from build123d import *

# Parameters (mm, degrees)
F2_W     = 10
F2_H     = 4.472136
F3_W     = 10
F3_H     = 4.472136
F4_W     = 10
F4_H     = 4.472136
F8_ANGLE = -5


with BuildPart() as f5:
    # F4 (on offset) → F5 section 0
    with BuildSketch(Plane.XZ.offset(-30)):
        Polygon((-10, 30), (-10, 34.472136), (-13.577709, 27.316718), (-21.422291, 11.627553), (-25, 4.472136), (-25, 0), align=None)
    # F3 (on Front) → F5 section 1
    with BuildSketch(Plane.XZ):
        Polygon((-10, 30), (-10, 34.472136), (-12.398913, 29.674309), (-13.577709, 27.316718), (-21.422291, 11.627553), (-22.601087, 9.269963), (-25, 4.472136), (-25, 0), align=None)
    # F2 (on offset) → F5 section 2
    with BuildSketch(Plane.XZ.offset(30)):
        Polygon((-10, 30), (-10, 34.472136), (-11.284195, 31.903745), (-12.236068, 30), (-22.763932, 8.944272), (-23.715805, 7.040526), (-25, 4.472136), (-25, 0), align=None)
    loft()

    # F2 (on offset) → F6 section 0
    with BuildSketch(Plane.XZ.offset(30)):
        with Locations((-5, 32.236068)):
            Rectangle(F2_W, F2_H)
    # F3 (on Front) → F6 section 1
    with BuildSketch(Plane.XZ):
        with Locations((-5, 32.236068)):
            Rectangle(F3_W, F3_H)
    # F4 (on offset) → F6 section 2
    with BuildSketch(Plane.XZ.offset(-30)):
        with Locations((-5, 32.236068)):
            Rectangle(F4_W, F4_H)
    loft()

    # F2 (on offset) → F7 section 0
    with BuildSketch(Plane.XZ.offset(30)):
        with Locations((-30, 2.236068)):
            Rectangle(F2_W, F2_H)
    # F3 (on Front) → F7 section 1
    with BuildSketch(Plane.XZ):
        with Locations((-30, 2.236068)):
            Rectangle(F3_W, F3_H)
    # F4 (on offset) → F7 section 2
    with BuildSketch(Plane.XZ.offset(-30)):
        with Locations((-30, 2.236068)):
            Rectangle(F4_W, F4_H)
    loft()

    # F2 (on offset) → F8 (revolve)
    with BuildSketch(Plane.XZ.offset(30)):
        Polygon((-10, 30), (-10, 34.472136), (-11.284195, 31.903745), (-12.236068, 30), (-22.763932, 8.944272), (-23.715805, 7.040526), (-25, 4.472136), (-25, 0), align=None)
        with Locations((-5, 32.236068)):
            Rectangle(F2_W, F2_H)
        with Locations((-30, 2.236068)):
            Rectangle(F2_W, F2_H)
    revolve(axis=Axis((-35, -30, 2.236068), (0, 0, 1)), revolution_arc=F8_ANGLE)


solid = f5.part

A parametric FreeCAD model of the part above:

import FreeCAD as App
import Part
import Sketcher

doc = App.newDocument("Part")
params = doc.addObject("Spreadsheet::Sheet", "Params")
for row, (alias, value) in enumerate([
    ("sketch1_length", "8.000001 mm"),
    ("sketch4_width", "10 mm"),
    ("sketch5_width", "10 mm"),
    ("sketch6_width", "10 mm"),
    ("sketch7_width", "10 mm"),
    ("sketch8_width", "10 mm"),
    ("sketch9_width", "10 mm"),
    ("sketch10_width", "10 mm"),
    ("revolution_angle", "5 deg"),
], start=1):
    params.set(f"A{row}", alias)
    params.set(f"B{row}", "=" + value)
    params.setAlias(f"B{row}", alias)

body = doc.addObject("PartDesign::Body", "Body")

# Sketch on XZ plane
sketch1 = doc.addObject("Sketcher::SketchObject", "Sketch")
body.addObject(sketch1)
sketch1.AttachmentSupport = (doc.XZ_Plane, [""])
sketch1.MapMode = "FlatFace"
sketch1.AttachmentOffset = App.Placement(App.Vector(0, 0, -30), App.Rotation())
sketch1.addGeometry([
    Part.LineSegment(App.Vector(-10, 30, 0), App.Vector(-10, 34.5, 0)),  # 0
    Part.LineSegment(App.Vector(-10, 34.5, 0), App.Vector(-13.6, 27.3, 0)),  # 1
    Part.LineSegment(App.Vector(-13.6, 27.3, 0), App.Vector(-21.4, 11.6, 0)),  # 2
    Part.LineSegment(App.Vector(-21.4, 11.6, 0), App.Vector(-25, 4.5, 0)),  # 3
    Part.LineSegment(App.Vector(-25, 4.5, 0), App.Vector(-25, 0, 0)),  # 4
    Part.LineSegment(App.Vector(-25, 0, 0), App.Vector(-10, 30, 0)),  # 5
], False)
sketch1.addConstraint([
    Sketcher.Constraint("Coincident", 0, 2, 1, 1),
    Sketcher.Constraint("Coincident", 1, 2, 2, 1),
    Sketcher.Constraint("Coincident", 2, 2, 3, 1),
    Sketcher.Constraint("Coincident", 3, 2, 4, 1),
    Sketcher.Constraint("Coincident", 4, 2, 5, 1),
    Sketcher.Constraint("Coincident", 5, 2, 0, 1),
    Sketcher.Constraint("Vertical", 0),
    Sketcher.Constraint("Vertical", 4),
    Sketcher.Constraint("PointOnObject", 4, 2, -1),
    Sketcher.Constraint("Parallel", 1, 2),
    Sketcher.Constraint("Parallel", 2, 3),
    Sketcher.Constraint("Parallel", 3, 5),
    Sketcher.Constraint("Equal", 1, 3),
    Sketcher.Constraint("Distance", 1, 8.000001),
    Sketcher.Constraint("DistanceX", 0, 2, -1, 1, 10.0),
    Sketcher.Constraint("DistanceX", 3, 2, -1, 1, 25.0),
    Sketcher.Constraint("DistanceY", -1, 1, 5, 2, 30.0),
    Sketcher.Constraint("DistanceY", 0, 1, 0, 2, 4.472136),
])
sketch1.setExpression("Constraints[13]", "Params.sketch1_length")

# Sketch on XZ plane
sketch2 = doc.addObject("Sketcher::SketchObject", "Sketch001")
body.addObject(sketch2)
sketch2.AttachmentSupport = (doc.XZ_Plane, [""])
sketch2.MapMode = "FlatFace"
sketch2.addGeometry([
    Part.LineSegment(App.Vector(-10, 30, 0), App.Vector(-10, 34.5, 0)),  # 0
    Part.LineSegment(App.Vector(-10, 34.5, 0), App.Vector(-12.4, 29.7, 0)),  # 1
    Part.LineSegment(App.Vector(-12.4, 29.7, 0), App.Vector(-13.6, 27.3, 0)),  # 2
    Part.LineSegment(App.Vector(-13.6, 27.3, 0), App.Vector(-21.4, 11.6, 0)),  # 3
    Part.LineSegment(App.Vector(-21.4, 11.6, 0), App.Vector(-22.6, 9.3, 0)),  # 4
    Part.LineSegment(App.Vector(-22.6, 9.3, 0), App.Vector(-25, 4.5, 0)),  # 5
    Part.LineSegment(App.Vector(-25, 4.5, 0), App.Vector(-25, 0, 0)),  # 6
    Part.LineSegment(App.Vector(-25, 0, 0), App.Vector(-10, 30, 0)),  # 7
], False)
sketch2.addConstraint([
    Sketcher.Constraint("Coincident", 0, 2, 1, 1),
    Sketcher.Constraint("Coincident", 1, 2, 2, 1),
    Sketcher.Constraint("Coincident", 2, 2, 3, 1),
    Sketcher.Constraint("Coincident", 3, 2, 4, 1),
    Sketcher.Constraint("Coincident", 4, 2, 5, 1),
    Sketcher.Constraint("Coincident", 5, 2, 6, 1),
    Sketcher.Constraint("Coincident", 6, 2, 7, 1),
    Sketcher.Constraint("Coincident", 7, 2, 0, 1),
    Sketcher.Constraint("Vertical", 0),
    Sketcher.Constraint("Vertical", 6),
    Sketcher.Constraint("PointOnObject", 6, 2, -1),
    Sketcher.Constraint("Parallel", 1, 2),
    Sketcher.Constraint("Parallel", 2, 3),
    Sketcher.Constraint("Parallel", 3, 4),
    Sketcher.Constraint("Parallel", 4, 5),
    Sketcher.Constraint("Parallel", 5, 7),
    Sketcher.Constraint("Equal", 2, 4),
    Sketcher.Constraint("Equal", 1, 5),
    Sketcher.Constraint("DistanceX", 0, 2, -1, 1, 10.0),
    Sketcher.Constraint("DistanceX", 5, 2, -1, 1, 25.0),
    Sketcher.Constraint("DistanceY", -1, 1, 7, 2, 30.0),
    Sketcher.Constraint("Distance", 3, 17.54102),
    Sketcher.Constraint("DistanceY", 0, 1, 0, 2, 4.472136),
    Sketcher.Constraint("DistanceY", -1, 1, 1, 2, 29.674309),
])

# Sketch on XZ plane
sketch3 = doc.addObject("Sketcher::SketchObject", "Sketch002")
body.addObject(sketch3)
sketch3.AttachmentSupport = (doc.XZ_Plane, [""])
sketch3.MapMode = "FlatFace"
sketch3.AttachmentOffset = App.Placement(App.Vector(0, 0, 30), App.Rotation())
sketch3.addGeometry([
    Part.LineSegment(App.Vector(-10, 30, 0), App.Vector(-10, 34.5, 0)),  # 0
    Part.LineSegment(App.Vector(-10, 34.5, 0), App.Vector(-11.3, 31.9, 0)),  # 1
    Part.LineSegment(App.Vector(-11.3, 31.9, 0), App.Vector(-12.2, 30, 0)),  # 2
    Part.LineSegment(App.Vector(-12.2, 30, 0), App.Vector(-25, 4.5, 0)),  # 3
    Part.LineSegment(App.Vector(-25, 4.5, 0), App.Vector(-25, 0, 0)),  # 4
    Part.LineSegment(App.Vector(-25, 0, 0), App.Vector(-10, 30, 0)),  # 5
], False)
sketch3.addConstraint([
    Sketcher.Constraint("Coincident", 0, 2, 1, 1),
    Sketcher.Constraint("Coincident", 1, 2, 2, 1),
    Sketcher.Constraint("Coincident", 2, 2, 3, 1),
    Sketcher.Constraint("Coincident", 3, 2, 4, 1),
    Sketcher.Constraint("Coincident", 4, 2, 5, 1),
    Sketcher.Constraint("Coincident", 5, 2, 0, 1),
    Sketcher.Constraint("Vertical", 0),
    Sketcher.Constraint("Vertical", 4),
    Sketcher.Constraint("PointOnObject", 4, 2, -1),
    Sketcher.Constraint("Parallel", 1, 2),
    Sketcher.Constraint("Parallel", 2, 3),
    Sketcher.Constraint("Parallel", 3, 5),
    Sketcher.Constraint("Horizontal", 2, 2, 5, 2),
    Sketcher.Constraint("DistanceX", 0, 2, -1, 1, 10.0),
    Sketcher.Constraint("DistanceY", -1, 1, 2, 2, 30.0),
    Sketcher.Constraint("DistanceX", 3, 2, -1, 1, 25.0),
    Sketcher.Constraint("Distance", 1, 2.871548),
    Sketcher.Constraint("Distance", 2, 2.128452),
])

additiveloft = doc.addObject("PartDesign::AdditiveLoft", "AdditiveLoft")
body.addObject(additiveloft)
additiveloft.Profile = sketch1
additiveloft.Sections = [sketch2, sketch3]

# Sketch on XZ plane
sketch4 = doc.addObject("Sketcher::SketchObject", "Sketch003")
body.addObject(sketch4)
sketch4.AttachmentSupport = (doc.XZ_Plane, [""])
sketch4.MapMode = "FlatFace"
sketch4.AttachmentOffset = App.Placement(App.Vector(0, 0, 30), App.Rotation())
sketch4.addGeometry([
    Part.LineSegment(App.Vector(-10, 34.5, 0), App.Vector(-10, 30, 0)),
    Part.LineSegment(App.Vector(-10, 30, 0), App.Vector(0, 30, 0)),
    Part.LineSegment(App.Vector(0, 30, 0), App.Vector(0, 34.5, 0)),
    Part.LineSegment(App.Vector(0, 34.5, 0), App.Vector(-10, 34.5, 0)),
], False)
sketch4.addConstraint([
    Sketcher.Constraint("Coincident", 0, 2, 1, 1),
    Sketcher.Constraint("Coincident", 1, 2, 2, 1),
    Sketcher.Constraint("Coincident", 2, 2, 3, 1),
    Sketcher.Constraint("Coincident", 3, 2, 0, 1),
    Sketcher.Constraint("Vertical", 0),
    Sketcher.Constraint("Horizontal", 1),
    Sketcher.Constraint("Vertical", 2),
    Sketcher.Constraint("Horizontal", 3),
    Sketcher.Constraint("PointOnObject", 1, 2, -2),
    Sketcher.Constraint("DistanceX", 1, 1, 1, 2, 10.0),
    Sketcher.Constraint("DistanceY", -1, 1, 0, 2, 30.0),
    Sketcher.Constraint("DistanceY", 0, 2, 0, 1, 4.472136),
])
sketch4.setExpression("Constraints[9]", "Params.sketch4_width")

# Sketch on XZ plane
sketch5 = doc.addObject("Sketcher::SketchObject", "Sketch004")
body.addObject(sketch5)
sketch5.AttachmentSupport = (doc.XZ_Plane, [""])
sketch5.MapMode = "FlatFace"
sketch5.addGeometry([
    Part.LineSegment(App.Vector(-10, 34.5, 0), App.Vector(-10, 30, 0)),
    Part.LineSegment(App.Vector(-10, 30, 0), App.Vector(0, 30, 0)),
    Part.LineSegment(App.Vector(0, 30, 0), App.Vector(0, 34.5, 0)),
    Part.LineSegment(App.Vector(0, 34.5, 0), App.Vector(-10, 34.5, 0)),
], False)
sketch5.addConstraint([
    Sketcher.Constraint("Coincident", 0, 2, 1, 1),
    Sketcher.Constraint("Coincident", 1, 2, 2, 1),
    Sketcher.Constraint("Coincident", 2, 2, 3, 1),
    Sketcher.Constraint("Coincident", 3, 2, 0, 1),
    Sketcher.Constraint("Vertical", 0),
    Sketcher.Constraint("Horizontal", 1),
    Sketcher.Constraint("Vertical", 2),
    Sketcher.Constraint("Horizontal", 3),
    Sketcher.Constraint("PointOnObject", 1, 2, -2),
    Sketcher.Constraint("DistanceX", 1, 1, 1, 2, 10.0),
    Sketcher.Constraint("DistanceY", -1, 1, 0, 2, 30.0),
    Sketcher.Constraint("DistanceY", 0, 2, 0, 1, 4.472136),
])
sketch5.setExpression("Constraints[9]", "Params.sketch5_width")

# Sketch on XZ plane
sketch6 = doc.addObject("Sketcher::SketchObject", "Sketch005")
body.addObject(sketch6)
sketch6.AttachmentSupport = (doc.XZ_Plane, [""])
sketch6.MapMode = "FlatFace"
sketch6.AttachmentOffset = App.Placement(App.Vector(0, 0, -30), App.Rotation())
sketch6.addGeometry([
    Part.LineSegment(App.Vector(-10, 34.5, 0), App.Vector(-10, 30, 0)),
    Part.LineSegment(App.Vector(-10, 30, 0), App.Vector(0, 30, 0)),
    Part.LineSegment(App.Vector(0, 30, 0), App.Vector(0, 34.5, 0)),
    Part.LineSegment(App.Vector(0, 34.5, 0), App.Vector(-10, 34.5, 0)),
], False)
sketch6.addConstraint([
    Sketcher.Constraint("Coincident", 0, 2, 1, 1),
    Sketcher.Constraint("Coincident", 1, 2, 2, 1),
    Sketcher.Constraint("Coincident", 2, 2, 3, 1),
    Sketcher.Constraint("Coincident", 3, 2, 0, 1),
    Sketcher.Constraint("Vertical", 0),
    Sketcher.Constraint("Horizontal", 1),
    Sketcher.Constraint("Vertical", 2),
    Sketcher.Constraint("Horizontal", 3),
    Sketcher.Constraint("PointOnObject", 1, 2, -2),
    Sketcher.Constraint("DistanceX", 1, 1, 1, 2, 10.0),
    Sketcher.Constraint("DistanceY", -1, 1, 0, 2, 30.0),
    Sketcher.Constraint("DistanceY", 0, 2, 0, 1, 4.472136),
])
sketch6.setExpression("Constraints[9]", "Params.sketch6_width")

additiveloft2 = doc.addObject("PartDesign::AdditiveLoft", "AdditiveLoft001")
body.addObject(additiveloft2)
additiveloft2.Profile = sketch4
additiveloft2.Sections = [sketch5, sketch6]

# Sketch on XZ plane
sketch7 = doc.addObject("Sketcher::SketchObject", "Sketch006")
body.addObject(sketch7)
sketch7.AttachmentSupport = (doc.XZ_Plane, [""])
sketch7.MapMode = "FlatFace"
sketch7.AttachmentOffset = App.Placement(App.Vector(0, 0, 30), App.Rotation())
sketch7.addGeometry([
    Part.LineSegment(App.Vector(-35, 4.5, 0), App.Vector(-35, 0, 0)),
    Part.LineSegment(App.Vector(-35, 0, 0), App.Vector(-25, 0, 0)),
    Part.LineSegment(App.Vector(-25, 0, 0), App.Vector(-25, 4.5, 0)),
    Part.LineSegment(App.Vector(-25, 4.5, 0), App.Vector(-35, 4.5, 0)),
], False)
sketch7.addConstraint([
    Sketcher.Constraint("Coincident", 0, 2, 1, 1),
    Sketcher.Constraint("Coincident", 1, 2, 2, 1),
    Sketcher.Constraint("Coincident", 2, 2, 3, 1),
    Sketcher.Constraint("Coincident", 3, 2, 0, 1),
    Sketcher.Constraint("Vertical", 0),
    Sketcher.Constraint("Horizontal", 1),
    Sketcher.Constraint("Vertical", 2),
    Sketcher.Constraint("Horizontal", 3),
    Sketcher.Constraint("PointOnObject", 0, 2, -1),
    Sketcher.Constraint("DistanceX", 1, 1, 1, 2, 10.0),
    Sketcher.Constraint("DistanceX", 0, 2, -1, 1, 35.0),
    Sketcher.Constraint("DistanceY", 0, 2, 0, 1, 4.472136),
])
sketch7.setExpression("Constraints[9]", "Params.sketch7_width")

# Sketch on XZ plane
sketch8 = doc.addObject("Sketcher::SketchObject", "Sketch007")
body.addObject(sketch8)
sketch8.AttachmentSupport = (doc.XZ_Plane, [""])
sketch8.MapMode = "FlatFace"
sketch8.addGeometry([
    Part.LineSegment(App.Vector(-35, 4.5, 0), App.Vector(-35, 0, 0)),
    Part.LineSegment(App.Vector(-35, 0, 0), App.Vector(-25, 0, 0)),
    Part.LineSegment(App.Vector(-25, 0, 0), App.Vector(-25, 4.5, 0)),
    Part.LineSegment(App.Vector(-25, 4.5, 0), App.Vector(-35, 4.5, 0)),
], False)
sketch8.addConstraint([
    Sketcher.Constraint("Coincident", 0, 2, 1, 1),
    Sketcher.Constraint("Coincident", 1, 2, 2, 1),
    Sketcher.Constraint("Coincident", 2, 2, 3, 1),
    Sketcher.Constraint("Coincident", 3, 2, 0, 1),
    Sketcher.Constraint("Vertical", 0),
    Sketcher.Constraint("Horizontal", 1),
    Sketcher.Constraint("Vertical", 2),
    Sketcher.Constraint("Horizontal", 3),
    Sketcher.Constraint("PointOnObject", 0, 2, -1),
    Sketcher.Constraint("DistanceX", 1, 1, 1, 2, 10.0),
    Sketcher.Constraint("DistanceX", 0, 2, -1, 1, 35.0),
    Sketcher.Constraint("DistanceY", 0, 2, 0, 1, 4.472136),
])
sketch8.setExpression("Constraints[9]", "Params.sketch8_width")

# Sketch on XZ plane
sketch9 = doc.addObject("Sketcher::SketchObject", "Sketch008")
body.addObject(sketch9)
sketch9.AttachmentSupport = (doc.XZ_Plane, [""])
sketch9.MapMode = "FlatFace"
sketch9.AttachmentOffset = App.Placement(App.Vector(0, 0, -30), App.Rotation())
sketch9.addGeometry([
    Part.LineSegment(App.Vector(-35, 4.5, 0), App.Vector(-35, 0, 0)),
    Part.LineSegment(App.Vector(-35, 0, 0), App.Vector(-25, 0, 0)),
    Part.LineSegment(App.Vector(-25, 0, 0), App.Vector(-25, 4.5, 0)),
    Part.LineSegment(App.Vector(-25, 4.5, 0), App.Vector(-35, 4.5, 0)),
], False)
sketch9.addConstraint([
    Sketcher.Constraint("Coincident", 0, 2, 1, 1),
    Sketcher.Constraint("Coincident", 1, 2, 2, 1),
    Sketcher.Constraint("Coincident", 2, 2, 3, 1),
    Sketcher.Constraint("Coincident", 3, 2, 0, 1),
    Sketcher.Constraint("Vertical", 0),
    Sketcher.Constraint("Horizontal", 1),
    Sketcher.Constraint("Vertical", 2),
    Sketcher.Constraint("Horizontal", 3),
    Sketcher.Constraint("PointOnObject", 0, 2, -1),
    Sketcher.Constraint("DistanceX", 1, 1, 1, 2, 10.0),
    Sketcher.Constraint("DistanceX", 0, 2, -1, 1, 35.0),
    Sketcher.Constraint("DistanceY", 0, 2, 0, 1, 4.472136),
])
sketch9.setExpression("Constraints[9]", "Params.sketch9_width")

additiveloft3 = doc.addObject("PartDesign::AdditiveLoft", "AdditiveLoft002")
body.addObject(additiveloft3)
additiveloft3.Profile = sketch7
additiveloft3.Sections = [sketch8, sketch9]

# Sketch on XZ plane
sketch10 = doc.addObject("Sketcher::SketchObject", "Sketch009")
body.addObject(sketch10)
sketch10.AttachmentSupport = (doc.XZ_Plane, [""])
sketch10.MapMode = "FlatFace"
sketch10.AttachmentOffset = App.Placement(App.Vector(0, 0, 30), App.Rotation())
sketch10.addGeometry([
    Part.LineSegment(App.Vector(-10, 34.5, 0), App.Vector(-11.3, 31.9, 0)),  # 0
    Part.LineSegment(App.Vector(-11.3, 31.9, 0), App.Vector(-12.2, 30, 0)),  # 1
    Part.LineSegment(App.Vector(-12.2, 30, 0), App.Vector(-25, 4.5, 0)),  # 2
    Part.LineSegment(App.Vector(-25, 4.5, 0), App.Vector(-35, 4.5, 0)),  # 3
    Part.LineSegment(App.Vector(-35, 4.5, 0), App.Vector(-35, 0, 0)),  # 4
    Part.LineSegment(App.Vector(-35, 0, 0), App.Vector(-25, 0, 0)),  # 5
    Part.LineSegment(App.Vector(-25, 0, 0), App.Vector(-10, 30, 0)),  # 6
    Part.LineSegment(App.Vector(-10, 30, 0), App.Vector(0, 30, 0)),  # 7
    Part.LineSegment(App.Vector(0, 30, 0), App.Vector(0, 34.5, 0)),  # 8
    Part.LineSegment(App.Vector(0, 34.5, 0), App.Vector(-10, 34.5, 0)),  # 9
], False)
sketch10.addGeometry(Part.LineSegment(App.Vector(-35, 0, 0), App.Vector(-35, 34.5, 0)), True)  # axis
sketch10.addConstraint([
    Sketcher.Constraint("Coincident", 0, 2, 1, 1),
    Sketcher.Constraint("Coincident", 1, 2, 2, 1),
    Sketcher.Constraint("Coincident", 2, 2, 3, 1),
    Sketcher.Constraint("Coincident", 3, 2, 4, 1),
    Sketcher.Constraint("Coincident", 4, 2, 5, 1),
    Sketcher.Constraint("Coincident", 5, 2, 6, 1),
    Sketcher.Constraint("Coincident", 6, 2, 7, 1),
    Sketcher.Constraint("Coincident", 7, 2, 8, 1),
    Sketcher.Constraint("Coincident", 8, 2, 9, 1),
    Sketcher.Constraint("Coincident", 9, 2, 0, 1),
    Sketcher.Constraint("Horizontal", 3),
    Sketcher.Constraint("Vertical", 4),
    Sketcher.Constraint("Horizontal", 5),
    Sketcher.Constraint("Horizontal", 7),
    Sketcher.Constraint("Vertical", 8),
    Sketcher.Constraint("Horizontal", 9),
    Sketcher.Constraint("Vertical", 10),
    Sketcher.Constraint("Coincident", 10, 1, 4, 2),
    Sketcher.Constraint("PointOnObject", 4, 2, -1),
    Sketcher.Constraint("PointOnObject", 7, 2, -2),
    Sketcher.Constraint("Parallel", 0, 1),
    Sketcher.Constraint("Parallel", 1, 2),
    Sketcher.Constraint("Parallel", 2, 6),
    Sketcher.Constraint("Horizontal", 1, 2, 6, 2),
    Sketcher.Constraint("Horizontal", 9, 2, 10, 2),
    Sketcher.Constraint("Vertical", 2, 2, 5, 2),
    Sketcher.Constraint("Vertical", 6, 2, 9, 2),
    Sketcher.Constraint("Equal", 5, 7),
    Sketcher.Constraint("DistanceX", 3, 2, 3, 1, 10.0),
    Sketcher.Constraint("DistanceY", -1, 1, 1, 2, 30.0),
    Sketcher.Constraint("DistanceX", 2, 2, -1, 1, 25.0),
    Sketcher.Constraint("Distance", 0, 2.871548),
    Sketcher.Constraint("Distance", 1, 2.128452),
])
sketch10.setExpression("Constraints[28]", "Params.sketch10_width")
revolution = doc.addObject("PartDesign::Revolution", "Revolution")
body.addObject(revolution)
revolution.Profile = sketch10
revolution.ReferenceAxis = (sketch10, ["Axis0"])
revolution.setExpression("Angle", "Params.revolution_angle")
revolution.Reversed = True

doc.recompute()
